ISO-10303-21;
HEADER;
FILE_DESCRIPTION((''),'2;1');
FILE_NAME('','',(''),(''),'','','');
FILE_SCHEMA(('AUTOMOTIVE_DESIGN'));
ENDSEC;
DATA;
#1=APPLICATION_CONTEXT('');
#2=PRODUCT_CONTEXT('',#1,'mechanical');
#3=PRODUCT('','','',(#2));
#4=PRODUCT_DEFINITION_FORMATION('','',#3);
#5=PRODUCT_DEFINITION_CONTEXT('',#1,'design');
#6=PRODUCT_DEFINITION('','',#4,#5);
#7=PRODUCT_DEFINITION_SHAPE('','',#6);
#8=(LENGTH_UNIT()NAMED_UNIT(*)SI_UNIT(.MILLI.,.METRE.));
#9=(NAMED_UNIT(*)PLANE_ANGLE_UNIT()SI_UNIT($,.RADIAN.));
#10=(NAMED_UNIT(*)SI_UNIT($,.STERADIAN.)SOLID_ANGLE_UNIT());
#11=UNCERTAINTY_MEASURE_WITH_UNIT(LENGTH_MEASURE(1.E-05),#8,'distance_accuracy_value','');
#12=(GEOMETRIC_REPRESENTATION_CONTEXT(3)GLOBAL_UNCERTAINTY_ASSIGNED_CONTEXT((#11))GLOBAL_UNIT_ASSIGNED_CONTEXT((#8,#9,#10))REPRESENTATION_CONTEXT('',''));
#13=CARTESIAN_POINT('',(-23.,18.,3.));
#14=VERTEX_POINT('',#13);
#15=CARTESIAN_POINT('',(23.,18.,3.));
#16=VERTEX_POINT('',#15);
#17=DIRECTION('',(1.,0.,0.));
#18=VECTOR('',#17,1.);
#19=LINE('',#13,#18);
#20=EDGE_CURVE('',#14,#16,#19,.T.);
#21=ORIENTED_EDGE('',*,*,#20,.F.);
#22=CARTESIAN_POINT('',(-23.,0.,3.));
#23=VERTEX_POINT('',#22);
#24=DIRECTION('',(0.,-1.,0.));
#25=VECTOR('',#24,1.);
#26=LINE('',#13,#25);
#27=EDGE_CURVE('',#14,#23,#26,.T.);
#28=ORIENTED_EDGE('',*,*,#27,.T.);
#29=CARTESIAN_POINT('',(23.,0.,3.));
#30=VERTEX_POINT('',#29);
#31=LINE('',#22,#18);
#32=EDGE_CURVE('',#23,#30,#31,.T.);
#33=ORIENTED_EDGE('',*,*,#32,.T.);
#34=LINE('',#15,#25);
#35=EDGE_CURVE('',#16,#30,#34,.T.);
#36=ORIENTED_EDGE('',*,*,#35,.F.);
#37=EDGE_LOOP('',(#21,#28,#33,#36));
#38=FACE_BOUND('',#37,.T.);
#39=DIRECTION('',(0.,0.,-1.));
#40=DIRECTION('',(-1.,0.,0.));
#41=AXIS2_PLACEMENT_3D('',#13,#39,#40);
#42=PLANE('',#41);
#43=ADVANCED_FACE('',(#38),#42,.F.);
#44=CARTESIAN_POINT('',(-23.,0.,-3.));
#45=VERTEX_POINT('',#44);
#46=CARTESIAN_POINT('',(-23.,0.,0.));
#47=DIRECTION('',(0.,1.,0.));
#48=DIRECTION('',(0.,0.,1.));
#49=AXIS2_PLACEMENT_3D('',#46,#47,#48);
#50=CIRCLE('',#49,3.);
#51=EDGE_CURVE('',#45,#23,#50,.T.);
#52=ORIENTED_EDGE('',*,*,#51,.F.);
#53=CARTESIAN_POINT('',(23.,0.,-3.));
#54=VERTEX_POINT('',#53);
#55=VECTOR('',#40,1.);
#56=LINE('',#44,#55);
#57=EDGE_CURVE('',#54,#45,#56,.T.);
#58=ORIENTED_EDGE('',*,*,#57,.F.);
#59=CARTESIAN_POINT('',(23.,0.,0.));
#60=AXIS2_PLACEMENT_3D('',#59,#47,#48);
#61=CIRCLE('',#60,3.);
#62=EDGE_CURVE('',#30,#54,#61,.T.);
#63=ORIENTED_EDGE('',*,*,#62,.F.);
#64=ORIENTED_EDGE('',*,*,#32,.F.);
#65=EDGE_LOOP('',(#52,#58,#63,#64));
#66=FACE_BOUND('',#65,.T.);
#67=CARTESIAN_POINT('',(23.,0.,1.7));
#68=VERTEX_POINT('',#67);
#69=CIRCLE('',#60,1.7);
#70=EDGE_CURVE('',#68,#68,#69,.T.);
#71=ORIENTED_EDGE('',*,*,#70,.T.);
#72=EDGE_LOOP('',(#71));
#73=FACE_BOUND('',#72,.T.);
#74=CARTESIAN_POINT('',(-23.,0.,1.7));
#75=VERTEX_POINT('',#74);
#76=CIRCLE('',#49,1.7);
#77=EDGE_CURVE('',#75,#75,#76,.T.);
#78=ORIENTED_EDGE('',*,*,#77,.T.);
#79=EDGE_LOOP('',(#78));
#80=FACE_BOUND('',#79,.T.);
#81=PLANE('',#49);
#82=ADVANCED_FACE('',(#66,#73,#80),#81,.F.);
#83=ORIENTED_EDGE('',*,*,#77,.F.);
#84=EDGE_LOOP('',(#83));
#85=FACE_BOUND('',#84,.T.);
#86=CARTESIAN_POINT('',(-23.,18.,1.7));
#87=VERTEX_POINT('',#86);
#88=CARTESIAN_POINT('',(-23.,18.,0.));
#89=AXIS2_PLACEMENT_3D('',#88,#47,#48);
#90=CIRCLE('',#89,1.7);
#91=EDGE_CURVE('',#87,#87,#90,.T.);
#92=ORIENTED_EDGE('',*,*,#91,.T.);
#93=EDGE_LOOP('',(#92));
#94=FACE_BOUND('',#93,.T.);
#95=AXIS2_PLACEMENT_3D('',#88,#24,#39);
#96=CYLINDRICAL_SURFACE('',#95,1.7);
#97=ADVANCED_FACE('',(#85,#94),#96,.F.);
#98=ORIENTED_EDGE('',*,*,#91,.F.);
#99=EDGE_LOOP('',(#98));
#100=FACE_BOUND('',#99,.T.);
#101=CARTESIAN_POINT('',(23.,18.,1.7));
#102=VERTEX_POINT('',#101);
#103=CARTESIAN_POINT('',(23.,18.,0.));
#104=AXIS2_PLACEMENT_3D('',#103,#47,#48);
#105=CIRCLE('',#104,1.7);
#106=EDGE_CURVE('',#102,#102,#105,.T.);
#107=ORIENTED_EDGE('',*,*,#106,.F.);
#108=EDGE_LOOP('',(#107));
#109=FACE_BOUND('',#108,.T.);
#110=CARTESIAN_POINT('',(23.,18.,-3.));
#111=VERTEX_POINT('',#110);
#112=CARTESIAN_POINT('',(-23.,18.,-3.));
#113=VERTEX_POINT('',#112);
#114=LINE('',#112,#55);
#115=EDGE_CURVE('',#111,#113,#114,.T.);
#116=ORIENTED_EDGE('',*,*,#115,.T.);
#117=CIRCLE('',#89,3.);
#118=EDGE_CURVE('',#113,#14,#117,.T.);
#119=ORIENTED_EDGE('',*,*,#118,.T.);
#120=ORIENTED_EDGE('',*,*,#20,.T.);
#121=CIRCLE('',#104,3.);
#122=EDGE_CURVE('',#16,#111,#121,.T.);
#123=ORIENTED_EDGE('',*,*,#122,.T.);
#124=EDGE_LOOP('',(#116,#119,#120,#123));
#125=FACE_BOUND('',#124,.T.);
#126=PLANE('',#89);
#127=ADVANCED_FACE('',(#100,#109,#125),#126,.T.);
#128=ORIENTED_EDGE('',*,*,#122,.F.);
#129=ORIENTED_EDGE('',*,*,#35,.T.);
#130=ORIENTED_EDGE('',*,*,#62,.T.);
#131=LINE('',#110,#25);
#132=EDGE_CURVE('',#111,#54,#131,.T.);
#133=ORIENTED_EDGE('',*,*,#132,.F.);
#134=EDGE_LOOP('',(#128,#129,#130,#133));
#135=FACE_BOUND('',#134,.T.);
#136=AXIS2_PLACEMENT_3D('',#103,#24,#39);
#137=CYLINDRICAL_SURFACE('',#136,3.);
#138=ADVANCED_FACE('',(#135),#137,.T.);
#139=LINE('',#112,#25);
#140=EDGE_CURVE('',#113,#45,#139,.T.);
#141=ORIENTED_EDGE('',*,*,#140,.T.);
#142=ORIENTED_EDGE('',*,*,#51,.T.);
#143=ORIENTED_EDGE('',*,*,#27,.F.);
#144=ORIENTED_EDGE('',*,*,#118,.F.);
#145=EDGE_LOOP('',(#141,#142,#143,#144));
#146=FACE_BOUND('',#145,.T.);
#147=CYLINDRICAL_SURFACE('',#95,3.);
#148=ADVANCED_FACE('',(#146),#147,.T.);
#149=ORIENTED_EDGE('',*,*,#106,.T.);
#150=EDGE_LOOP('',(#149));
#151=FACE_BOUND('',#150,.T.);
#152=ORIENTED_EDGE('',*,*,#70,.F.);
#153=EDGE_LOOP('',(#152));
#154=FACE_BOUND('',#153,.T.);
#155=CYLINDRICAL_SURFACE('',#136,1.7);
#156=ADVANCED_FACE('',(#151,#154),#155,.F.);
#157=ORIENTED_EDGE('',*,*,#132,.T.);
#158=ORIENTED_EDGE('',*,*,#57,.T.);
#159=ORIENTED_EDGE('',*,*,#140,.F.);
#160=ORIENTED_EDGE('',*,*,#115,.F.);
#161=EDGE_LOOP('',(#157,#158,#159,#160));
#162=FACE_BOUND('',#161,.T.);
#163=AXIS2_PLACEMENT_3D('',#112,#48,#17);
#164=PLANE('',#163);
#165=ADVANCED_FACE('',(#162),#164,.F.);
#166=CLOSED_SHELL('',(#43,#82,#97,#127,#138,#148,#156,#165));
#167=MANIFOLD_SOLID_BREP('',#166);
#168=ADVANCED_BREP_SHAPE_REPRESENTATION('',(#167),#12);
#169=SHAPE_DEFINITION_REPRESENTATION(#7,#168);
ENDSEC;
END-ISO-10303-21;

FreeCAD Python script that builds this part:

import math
import FreeCAD as App
import Part
import Sketcher
from FreeCAD import Vector

doc = App.newDocument("Part")
body = doc.addObject("PartDesign::Body", "Body")

# Sketch on XZ plane
sketch1 = body.newObject("Sketcher::SketchObject", "Sketch")
sketch1.AttachmentSupport = (doc.getObject("XZ_Plane"), [""])
sketch1.MapMode = "FlatFace"
sketch1.addGeometry(Part.LineSegment(Vector(23, -3, 0), Vector(-23, -3, 0)), False)
sketch1.addGeometry(Part.ArcOfCircle(Part.Circle(Vector(-23, 0, 0), Vector(0, 0, 1), 3), math.radians(90), math.radians(270)), False)
sketch1.addGeometry(Part.LineSegment(Vector(-23, 3, 0), Vector(23, 3, 0)), False)
sketch1.addGeometry(Part.ArcOfCircle(Part.Circle(Vector(23, 0, 0), Vector(0, 0, 1), 3), math.radians(-90), math.radians(90)), False)
sketch1.addGeometry(Part.Circle(Vector(23, 0, 0), Vector(0, 0, 1), 1.7), False)
sketch1.addGeometry(Part.Circle(Vector(-23, 0, 0), Vector(0, 0, 1), 1.7), False)
sketch1.addConstraint(Sketcher.Constraint("Tangent", 0, 2, 1, 2))
sketch1.addConstraint(Sketcher.Constraint("Tangent", 1, 1, 2, 1))
sketch1.addConstraint(Sketcher.Constraint("Tangent", 2, 2, 3, 2))
sketch1.addConstraint(Sketcher.Constraint("Tangent", 3, 1, 0, 1))
sketch1.addConstraint(Sketcher.Constraint("Horizontal", 0))
sketch1.addConstraint(Sketcher.Constraint("Horizontal", 2))
sketch1.addConstraint(Sketcher.Constraint("Coincident", 4, 3, 3, 3))
sketch1.addConstraint(Sketcher.Constraint("Coincident", 5, 3, 1, 3))
sketch1.addConstraint(Sketcher.Constraint("Equal", 4, 5))
sketch1.addConstraint(Sketcher.Constraint("Symmetric", 1, 3, 3, 3, -1, 1))
sketch1.addConstraint(Sketcher.Constraint("Radius", 1, 3.0))
sketch1.addConstraint(Sketcher.Constraint("Diameter", 4, 3.4))
sketch1.addConstraint(Sketcher.Constraint("DistanceX", 0, 2, 0, 1, 46.0))
pad1 = body.newObject("PartDesign::Pad", "Pad")
pad1.Profile = sketch1
pad1.Length = 18
pad1.Reversed = True

doc.recompute()
